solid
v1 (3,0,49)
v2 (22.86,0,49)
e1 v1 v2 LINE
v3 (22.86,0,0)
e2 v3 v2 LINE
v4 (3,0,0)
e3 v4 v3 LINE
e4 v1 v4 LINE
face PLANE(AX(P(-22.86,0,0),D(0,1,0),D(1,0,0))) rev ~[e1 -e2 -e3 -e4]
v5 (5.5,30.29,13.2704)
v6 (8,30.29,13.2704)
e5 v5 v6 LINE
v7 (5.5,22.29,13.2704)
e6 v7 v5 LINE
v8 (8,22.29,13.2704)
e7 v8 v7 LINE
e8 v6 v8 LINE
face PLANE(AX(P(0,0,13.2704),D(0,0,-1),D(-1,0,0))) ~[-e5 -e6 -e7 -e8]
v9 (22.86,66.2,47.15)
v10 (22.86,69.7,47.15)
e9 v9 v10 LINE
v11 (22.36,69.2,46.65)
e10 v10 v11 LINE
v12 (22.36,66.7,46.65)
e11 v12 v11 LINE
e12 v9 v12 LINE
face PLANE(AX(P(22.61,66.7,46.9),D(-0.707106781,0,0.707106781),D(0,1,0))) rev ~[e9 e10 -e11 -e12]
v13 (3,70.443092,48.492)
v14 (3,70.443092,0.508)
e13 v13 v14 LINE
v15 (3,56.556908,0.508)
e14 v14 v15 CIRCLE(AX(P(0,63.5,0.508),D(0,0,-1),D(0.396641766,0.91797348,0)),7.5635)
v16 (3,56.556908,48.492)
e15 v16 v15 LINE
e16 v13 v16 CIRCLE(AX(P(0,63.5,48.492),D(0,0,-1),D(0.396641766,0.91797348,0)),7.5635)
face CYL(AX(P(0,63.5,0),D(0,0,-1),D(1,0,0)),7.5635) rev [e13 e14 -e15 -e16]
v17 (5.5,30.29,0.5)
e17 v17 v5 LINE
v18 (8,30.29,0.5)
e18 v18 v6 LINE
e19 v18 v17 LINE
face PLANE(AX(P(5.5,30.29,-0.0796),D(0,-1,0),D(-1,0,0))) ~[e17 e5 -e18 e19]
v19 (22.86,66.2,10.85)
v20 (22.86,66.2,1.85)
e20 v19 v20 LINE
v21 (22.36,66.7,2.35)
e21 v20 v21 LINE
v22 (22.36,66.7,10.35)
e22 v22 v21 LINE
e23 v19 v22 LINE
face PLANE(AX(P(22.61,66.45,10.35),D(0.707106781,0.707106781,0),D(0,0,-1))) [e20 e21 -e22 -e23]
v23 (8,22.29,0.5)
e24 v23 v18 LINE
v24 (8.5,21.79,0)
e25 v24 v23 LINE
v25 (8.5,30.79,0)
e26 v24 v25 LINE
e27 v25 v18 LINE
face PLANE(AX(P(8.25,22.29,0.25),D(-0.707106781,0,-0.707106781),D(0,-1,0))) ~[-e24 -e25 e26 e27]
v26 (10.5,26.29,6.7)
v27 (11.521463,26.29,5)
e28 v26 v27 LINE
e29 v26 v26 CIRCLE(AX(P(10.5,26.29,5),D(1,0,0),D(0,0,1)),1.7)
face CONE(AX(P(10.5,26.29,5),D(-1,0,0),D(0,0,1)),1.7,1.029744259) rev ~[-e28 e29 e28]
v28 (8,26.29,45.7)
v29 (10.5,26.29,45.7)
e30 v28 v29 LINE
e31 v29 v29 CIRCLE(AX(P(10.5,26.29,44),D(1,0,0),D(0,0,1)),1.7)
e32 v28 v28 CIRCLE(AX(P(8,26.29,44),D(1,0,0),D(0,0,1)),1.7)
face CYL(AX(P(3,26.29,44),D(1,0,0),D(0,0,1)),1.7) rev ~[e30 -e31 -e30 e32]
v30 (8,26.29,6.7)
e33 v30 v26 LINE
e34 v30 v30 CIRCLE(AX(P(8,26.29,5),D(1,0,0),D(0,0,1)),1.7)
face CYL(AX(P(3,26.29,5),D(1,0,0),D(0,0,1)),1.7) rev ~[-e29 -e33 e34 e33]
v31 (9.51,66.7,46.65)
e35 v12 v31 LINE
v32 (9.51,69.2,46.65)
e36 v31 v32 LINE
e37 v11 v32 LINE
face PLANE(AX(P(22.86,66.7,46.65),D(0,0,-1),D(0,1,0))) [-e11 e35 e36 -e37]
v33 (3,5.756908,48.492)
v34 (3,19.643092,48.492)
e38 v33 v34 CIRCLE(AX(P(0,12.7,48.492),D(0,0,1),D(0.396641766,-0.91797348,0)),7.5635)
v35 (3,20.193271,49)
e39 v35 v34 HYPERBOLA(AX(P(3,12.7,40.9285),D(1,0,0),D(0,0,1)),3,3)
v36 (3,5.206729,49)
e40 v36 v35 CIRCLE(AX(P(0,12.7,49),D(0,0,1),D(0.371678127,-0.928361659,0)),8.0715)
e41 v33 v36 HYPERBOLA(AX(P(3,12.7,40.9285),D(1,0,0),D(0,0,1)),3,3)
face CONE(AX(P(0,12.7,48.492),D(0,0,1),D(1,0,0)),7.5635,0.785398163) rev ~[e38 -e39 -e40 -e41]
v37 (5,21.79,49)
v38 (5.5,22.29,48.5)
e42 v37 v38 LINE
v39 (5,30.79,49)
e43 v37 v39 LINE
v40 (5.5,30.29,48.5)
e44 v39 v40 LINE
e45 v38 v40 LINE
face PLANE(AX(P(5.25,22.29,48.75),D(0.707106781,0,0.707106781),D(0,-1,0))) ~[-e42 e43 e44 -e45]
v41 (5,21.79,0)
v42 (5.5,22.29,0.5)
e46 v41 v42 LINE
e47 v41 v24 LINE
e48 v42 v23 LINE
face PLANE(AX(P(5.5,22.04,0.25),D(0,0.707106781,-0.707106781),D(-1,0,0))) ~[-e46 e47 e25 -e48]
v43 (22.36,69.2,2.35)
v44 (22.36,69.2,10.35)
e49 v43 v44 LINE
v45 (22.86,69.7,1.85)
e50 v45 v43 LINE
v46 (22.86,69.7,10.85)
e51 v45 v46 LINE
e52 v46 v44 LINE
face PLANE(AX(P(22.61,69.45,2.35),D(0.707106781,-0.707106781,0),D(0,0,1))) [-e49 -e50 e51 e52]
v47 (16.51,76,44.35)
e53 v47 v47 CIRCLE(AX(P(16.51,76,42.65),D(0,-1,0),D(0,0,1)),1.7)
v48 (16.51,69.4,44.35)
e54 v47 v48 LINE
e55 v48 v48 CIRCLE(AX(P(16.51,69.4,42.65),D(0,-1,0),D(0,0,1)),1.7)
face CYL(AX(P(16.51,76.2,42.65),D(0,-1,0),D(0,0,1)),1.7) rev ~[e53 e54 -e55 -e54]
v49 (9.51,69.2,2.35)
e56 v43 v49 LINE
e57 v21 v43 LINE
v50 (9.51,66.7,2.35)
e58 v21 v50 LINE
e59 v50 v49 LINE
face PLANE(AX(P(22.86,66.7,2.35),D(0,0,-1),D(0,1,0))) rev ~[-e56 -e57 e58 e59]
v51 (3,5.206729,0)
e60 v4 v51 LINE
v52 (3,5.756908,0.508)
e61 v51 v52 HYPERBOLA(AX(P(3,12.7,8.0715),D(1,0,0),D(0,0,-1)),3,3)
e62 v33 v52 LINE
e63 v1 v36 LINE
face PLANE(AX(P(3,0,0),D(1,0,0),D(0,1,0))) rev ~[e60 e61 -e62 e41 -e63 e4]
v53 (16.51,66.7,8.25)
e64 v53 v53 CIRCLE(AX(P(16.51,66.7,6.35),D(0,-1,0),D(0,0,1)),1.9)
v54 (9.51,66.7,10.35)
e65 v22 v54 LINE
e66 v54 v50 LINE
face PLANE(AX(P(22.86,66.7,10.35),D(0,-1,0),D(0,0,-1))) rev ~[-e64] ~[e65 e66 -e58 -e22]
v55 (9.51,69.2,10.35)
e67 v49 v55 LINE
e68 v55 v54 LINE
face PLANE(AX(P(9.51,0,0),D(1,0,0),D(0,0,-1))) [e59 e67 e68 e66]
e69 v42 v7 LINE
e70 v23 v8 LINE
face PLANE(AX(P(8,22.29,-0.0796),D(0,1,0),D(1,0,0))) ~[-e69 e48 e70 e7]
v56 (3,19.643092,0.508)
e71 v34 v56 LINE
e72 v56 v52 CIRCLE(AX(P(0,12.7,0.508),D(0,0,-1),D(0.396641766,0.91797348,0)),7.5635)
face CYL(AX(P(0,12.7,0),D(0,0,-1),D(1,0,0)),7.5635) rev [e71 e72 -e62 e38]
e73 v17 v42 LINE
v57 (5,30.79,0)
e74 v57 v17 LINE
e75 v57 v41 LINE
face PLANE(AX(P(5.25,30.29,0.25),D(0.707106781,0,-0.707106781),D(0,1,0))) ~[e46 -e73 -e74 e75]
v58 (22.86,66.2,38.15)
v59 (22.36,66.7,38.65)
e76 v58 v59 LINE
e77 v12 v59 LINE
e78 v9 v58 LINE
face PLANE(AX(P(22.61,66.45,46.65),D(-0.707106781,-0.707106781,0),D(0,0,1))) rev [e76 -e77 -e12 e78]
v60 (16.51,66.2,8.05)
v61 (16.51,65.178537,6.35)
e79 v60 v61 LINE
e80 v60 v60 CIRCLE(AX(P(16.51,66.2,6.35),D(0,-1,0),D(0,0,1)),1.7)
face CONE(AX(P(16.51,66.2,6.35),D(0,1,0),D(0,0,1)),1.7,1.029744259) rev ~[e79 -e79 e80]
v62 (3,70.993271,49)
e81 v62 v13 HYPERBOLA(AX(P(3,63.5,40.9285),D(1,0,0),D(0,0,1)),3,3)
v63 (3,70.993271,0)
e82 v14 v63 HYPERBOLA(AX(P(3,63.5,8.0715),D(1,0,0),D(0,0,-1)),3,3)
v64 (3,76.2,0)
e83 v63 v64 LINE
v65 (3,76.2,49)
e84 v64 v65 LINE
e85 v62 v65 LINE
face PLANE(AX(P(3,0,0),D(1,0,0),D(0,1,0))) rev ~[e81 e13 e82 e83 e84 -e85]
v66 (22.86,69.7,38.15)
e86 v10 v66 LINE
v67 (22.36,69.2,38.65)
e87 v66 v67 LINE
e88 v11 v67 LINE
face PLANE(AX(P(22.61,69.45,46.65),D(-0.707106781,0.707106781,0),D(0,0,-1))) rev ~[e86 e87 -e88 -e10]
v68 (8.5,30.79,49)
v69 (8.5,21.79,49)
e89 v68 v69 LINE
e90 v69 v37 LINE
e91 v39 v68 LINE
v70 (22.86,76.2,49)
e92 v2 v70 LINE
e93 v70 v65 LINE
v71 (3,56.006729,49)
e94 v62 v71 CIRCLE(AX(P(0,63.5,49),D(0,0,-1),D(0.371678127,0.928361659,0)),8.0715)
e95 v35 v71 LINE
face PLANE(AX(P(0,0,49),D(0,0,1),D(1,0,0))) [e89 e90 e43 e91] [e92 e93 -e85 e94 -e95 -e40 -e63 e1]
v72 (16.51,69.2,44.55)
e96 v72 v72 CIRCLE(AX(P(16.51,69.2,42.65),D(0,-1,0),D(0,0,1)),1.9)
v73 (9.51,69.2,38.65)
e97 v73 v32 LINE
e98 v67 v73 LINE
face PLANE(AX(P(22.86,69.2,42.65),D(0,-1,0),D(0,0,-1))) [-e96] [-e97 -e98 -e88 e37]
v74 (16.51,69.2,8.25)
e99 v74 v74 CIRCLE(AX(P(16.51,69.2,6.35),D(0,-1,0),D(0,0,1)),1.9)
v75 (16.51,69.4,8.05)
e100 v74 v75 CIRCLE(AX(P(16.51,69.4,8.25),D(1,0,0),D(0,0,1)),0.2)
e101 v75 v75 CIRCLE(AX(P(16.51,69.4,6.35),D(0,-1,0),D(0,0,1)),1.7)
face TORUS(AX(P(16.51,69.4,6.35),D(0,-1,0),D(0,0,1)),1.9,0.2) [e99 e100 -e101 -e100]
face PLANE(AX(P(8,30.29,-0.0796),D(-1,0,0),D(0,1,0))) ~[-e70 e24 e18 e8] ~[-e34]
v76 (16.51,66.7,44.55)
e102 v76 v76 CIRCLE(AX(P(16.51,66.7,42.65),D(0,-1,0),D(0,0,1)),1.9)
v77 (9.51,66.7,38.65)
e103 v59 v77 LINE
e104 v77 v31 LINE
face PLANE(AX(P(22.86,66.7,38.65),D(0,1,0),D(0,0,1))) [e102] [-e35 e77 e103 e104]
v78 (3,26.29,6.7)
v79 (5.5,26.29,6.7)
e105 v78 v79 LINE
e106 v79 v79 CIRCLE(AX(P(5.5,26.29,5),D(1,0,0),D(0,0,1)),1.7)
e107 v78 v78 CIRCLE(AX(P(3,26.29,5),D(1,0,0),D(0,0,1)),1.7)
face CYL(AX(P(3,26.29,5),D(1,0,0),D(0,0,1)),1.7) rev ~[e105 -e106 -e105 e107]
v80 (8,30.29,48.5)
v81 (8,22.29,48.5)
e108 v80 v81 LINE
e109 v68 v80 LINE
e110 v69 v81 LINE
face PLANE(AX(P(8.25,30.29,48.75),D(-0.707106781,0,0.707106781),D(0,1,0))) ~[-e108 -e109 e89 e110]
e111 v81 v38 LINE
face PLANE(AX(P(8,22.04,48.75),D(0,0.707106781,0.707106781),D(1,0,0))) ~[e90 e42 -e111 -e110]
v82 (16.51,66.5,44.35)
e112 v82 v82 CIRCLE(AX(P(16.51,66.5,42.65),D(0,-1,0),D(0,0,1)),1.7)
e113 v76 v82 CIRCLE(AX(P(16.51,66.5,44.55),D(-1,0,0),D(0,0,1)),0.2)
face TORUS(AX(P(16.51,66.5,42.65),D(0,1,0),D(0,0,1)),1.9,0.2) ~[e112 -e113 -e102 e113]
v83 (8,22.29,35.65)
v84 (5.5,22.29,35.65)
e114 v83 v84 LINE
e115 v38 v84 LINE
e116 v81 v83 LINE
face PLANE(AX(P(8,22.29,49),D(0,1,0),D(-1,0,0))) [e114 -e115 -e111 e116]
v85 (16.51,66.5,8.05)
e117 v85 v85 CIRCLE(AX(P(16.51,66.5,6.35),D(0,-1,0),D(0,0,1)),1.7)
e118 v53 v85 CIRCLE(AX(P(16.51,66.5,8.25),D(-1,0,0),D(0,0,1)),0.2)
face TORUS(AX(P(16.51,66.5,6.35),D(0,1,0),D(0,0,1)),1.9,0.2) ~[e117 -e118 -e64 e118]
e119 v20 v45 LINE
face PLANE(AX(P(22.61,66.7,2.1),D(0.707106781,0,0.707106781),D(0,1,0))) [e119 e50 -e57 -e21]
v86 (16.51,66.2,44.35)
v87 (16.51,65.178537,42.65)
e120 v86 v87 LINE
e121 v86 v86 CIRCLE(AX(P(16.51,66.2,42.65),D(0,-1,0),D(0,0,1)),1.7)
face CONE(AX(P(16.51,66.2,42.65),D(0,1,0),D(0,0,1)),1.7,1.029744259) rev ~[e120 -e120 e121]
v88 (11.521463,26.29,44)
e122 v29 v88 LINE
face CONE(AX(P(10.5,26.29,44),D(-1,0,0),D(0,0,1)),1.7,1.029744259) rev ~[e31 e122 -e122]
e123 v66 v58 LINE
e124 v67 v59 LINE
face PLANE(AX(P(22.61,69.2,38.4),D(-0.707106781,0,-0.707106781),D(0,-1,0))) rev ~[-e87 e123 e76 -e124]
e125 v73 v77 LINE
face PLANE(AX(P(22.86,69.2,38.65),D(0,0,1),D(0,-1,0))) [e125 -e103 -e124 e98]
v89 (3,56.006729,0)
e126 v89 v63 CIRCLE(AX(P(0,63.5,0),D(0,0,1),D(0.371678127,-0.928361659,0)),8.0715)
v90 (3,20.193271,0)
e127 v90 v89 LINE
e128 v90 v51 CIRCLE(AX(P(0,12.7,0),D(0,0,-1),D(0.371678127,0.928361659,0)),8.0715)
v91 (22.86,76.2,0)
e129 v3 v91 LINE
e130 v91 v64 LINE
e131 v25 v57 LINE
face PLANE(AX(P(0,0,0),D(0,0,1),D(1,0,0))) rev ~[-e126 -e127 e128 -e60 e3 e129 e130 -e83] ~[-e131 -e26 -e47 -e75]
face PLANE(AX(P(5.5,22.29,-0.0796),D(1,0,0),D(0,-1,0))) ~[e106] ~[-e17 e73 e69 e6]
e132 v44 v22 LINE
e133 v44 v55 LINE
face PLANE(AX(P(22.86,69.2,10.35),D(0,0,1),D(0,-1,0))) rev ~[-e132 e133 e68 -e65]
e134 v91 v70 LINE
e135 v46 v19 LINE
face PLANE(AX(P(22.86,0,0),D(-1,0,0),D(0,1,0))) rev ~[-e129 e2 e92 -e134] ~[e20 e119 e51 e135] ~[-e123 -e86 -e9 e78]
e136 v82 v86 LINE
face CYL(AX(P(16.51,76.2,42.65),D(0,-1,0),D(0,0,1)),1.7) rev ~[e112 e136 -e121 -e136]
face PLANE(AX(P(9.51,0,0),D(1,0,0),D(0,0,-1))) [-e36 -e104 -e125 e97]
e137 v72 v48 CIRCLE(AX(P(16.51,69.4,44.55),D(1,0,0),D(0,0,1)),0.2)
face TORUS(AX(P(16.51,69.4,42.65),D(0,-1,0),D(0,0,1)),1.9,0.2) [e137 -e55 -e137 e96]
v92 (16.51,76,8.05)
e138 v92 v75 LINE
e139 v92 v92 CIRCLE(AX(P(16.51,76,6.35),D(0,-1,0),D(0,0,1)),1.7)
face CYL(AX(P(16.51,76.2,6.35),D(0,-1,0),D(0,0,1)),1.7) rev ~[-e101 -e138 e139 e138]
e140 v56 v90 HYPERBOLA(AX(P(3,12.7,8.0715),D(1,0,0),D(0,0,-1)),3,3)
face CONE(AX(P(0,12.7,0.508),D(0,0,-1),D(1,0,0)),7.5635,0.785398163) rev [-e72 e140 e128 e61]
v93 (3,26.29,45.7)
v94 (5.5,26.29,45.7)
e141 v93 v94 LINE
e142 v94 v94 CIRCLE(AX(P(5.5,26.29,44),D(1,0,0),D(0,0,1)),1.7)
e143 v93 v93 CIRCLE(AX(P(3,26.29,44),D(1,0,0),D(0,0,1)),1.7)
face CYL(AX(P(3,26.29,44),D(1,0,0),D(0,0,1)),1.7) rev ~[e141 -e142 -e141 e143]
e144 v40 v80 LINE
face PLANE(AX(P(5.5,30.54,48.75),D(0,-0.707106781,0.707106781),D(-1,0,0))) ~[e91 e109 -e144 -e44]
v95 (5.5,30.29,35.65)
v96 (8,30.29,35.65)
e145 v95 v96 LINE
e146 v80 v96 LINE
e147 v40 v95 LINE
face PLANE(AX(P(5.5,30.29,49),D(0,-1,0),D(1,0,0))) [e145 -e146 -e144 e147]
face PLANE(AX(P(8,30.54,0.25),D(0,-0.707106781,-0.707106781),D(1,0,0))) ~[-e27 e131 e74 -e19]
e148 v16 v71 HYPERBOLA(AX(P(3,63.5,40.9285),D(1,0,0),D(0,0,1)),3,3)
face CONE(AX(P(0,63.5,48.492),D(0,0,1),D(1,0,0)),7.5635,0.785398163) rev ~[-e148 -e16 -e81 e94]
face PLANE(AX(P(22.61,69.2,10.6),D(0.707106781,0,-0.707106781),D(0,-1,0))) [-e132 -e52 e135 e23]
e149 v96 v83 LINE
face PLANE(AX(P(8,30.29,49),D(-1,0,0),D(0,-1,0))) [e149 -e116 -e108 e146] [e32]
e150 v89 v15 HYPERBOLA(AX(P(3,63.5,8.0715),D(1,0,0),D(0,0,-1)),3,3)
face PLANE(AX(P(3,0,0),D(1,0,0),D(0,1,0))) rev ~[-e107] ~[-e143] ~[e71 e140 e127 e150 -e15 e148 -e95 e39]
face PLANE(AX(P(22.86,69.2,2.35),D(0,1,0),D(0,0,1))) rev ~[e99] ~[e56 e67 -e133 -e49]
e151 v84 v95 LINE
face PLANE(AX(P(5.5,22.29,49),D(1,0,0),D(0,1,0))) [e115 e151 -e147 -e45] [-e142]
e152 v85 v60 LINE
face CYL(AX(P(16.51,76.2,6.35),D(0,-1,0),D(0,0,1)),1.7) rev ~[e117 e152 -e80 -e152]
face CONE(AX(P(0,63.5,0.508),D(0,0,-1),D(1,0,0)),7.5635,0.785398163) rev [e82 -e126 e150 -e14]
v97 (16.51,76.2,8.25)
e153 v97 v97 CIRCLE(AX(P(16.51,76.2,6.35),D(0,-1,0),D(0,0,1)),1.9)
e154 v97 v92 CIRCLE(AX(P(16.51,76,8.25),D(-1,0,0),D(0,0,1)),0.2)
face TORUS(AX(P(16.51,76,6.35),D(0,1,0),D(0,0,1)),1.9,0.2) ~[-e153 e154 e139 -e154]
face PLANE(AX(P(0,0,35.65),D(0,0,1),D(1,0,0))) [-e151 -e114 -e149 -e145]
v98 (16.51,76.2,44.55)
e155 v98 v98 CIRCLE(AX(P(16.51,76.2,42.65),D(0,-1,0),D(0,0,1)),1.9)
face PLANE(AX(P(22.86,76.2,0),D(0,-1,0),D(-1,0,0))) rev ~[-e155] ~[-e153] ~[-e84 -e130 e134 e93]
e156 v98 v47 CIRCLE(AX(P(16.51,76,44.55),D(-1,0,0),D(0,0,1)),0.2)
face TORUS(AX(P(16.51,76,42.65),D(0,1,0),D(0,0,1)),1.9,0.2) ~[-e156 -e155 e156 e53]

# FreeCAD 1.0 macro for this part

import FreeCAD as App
import Part
import Sketcher

V = App.Vector


def edges_at(feature, points):
    """Names of the edges that pass closest to the given points."""
    edges = feature.Shape.Edges
    near = lambda p: min(range(len(edges)), key=lambda i: edges[i].distToShape(Part.Vertex(*p))[0])
    return sorted({f"Edge{near(p) + 1}" for p in points})


def add_polygon(sketch, points):
    """Adds a closed chain of lines whose ends are joined by coincident constraints."""
    first, n = sketch.GeometryCount, len(points)
    for a, b in zip(points, points[1:] + points[:1]):
        sketch.addGeometry(Part.LineSegment(App.Vector(*a, 0), App.Vector(*b, 0)), False)
    for i in range(n):
        sketch.addConstraint(Sketcher.Constraint("Coincident", first + i, 2, first + (i + 1) % n, 1))

doc = App.newDocument("Part")
body = doc.addObject("PartDesign::Body", "Body")

# Sketch on XY plane
sketch1 = body.newObject("Sketcher::SketchObject", "Sketch")
sketch1.AttachmentSupport = (doc.getObject("XY_Plane"), [""])
sketch1.MapMode = "FlatFace"
add_polygon(sketch1, [(-23, 76), (-23, 0), (23, 0), (23, 76)])  # lines 0-3
sketch1.addGeometry(Part.Circle(V(0, 13, 0), V(0, 0, 1), 8), False)  # 4
sketch1.addGeometry(Part.Circle(V(0, 64, 0), V(0, 0, 1), 8), False)  # 5
sketch1.addConstraint([
    Sketcher.Constraint("Vertical", 0),
    Sketcher.Constraint("Horizontal", 1),
    Sketcher.Constraint("Vertical", 2),
    Sketcher.Constraint("Horizontal", 3),
    Sketcher.Constraint("Equal", 4, 5),
    Sketcher.Constraint("Symmetric", 0, 2, 1, 2, -1, 1),
    Sketcher.Constraint("PointOnObject", 4, 3, -2),
    Sketcher.Constraint("PointOnObject", 5, 3, -2),
    Sketcher.Constraint("Diameter", 4, 15.127),
    Sketcher.Constraint("DistanceY", 0, 2, 0, 1, 76.2),
    Sketcher.Constraint("DistanceX", 1, 1, 1, 2, 45.72),
    Sketcher.Constraint("DistanceY", -1, 1, 4, 3, 12.7),
    Sketcher.Constraint("DistanceY", 4, 3, 5, 3, 50.8),
])
pad1 = body.newObject("PartDesign::Pad", "Pad")
pad1.Profile = sketch1
pad1.Length = 49
doc.recompute()

chamfer = body.newObject("PartDesign::Chamfer", "Chamfer")
chamfer.Base = (pad1, edges_at(pad1, [
    (-7.564, 63.5, 49),
    (-7.564, 12.7, 49),
    (-7.564, 63.5, 0),
    (-7.564, 12.7, 0),
]))
chamfer.Size = 0.508

# Sketch on YZ plane
sketch2 = body.newObject("Sketcher::SketchObject", "Sketch001")
sketch2.AttachmentSupport = (doc.getObject("YZ_Plane"), [""])
sketch2.MapMode = "FlatFace"
sketch2.AttachmentOffset = App.Placement(V(0, 0, 3), App.Rotation())
add_polygon(sketch2, [(-4, -3), (80, -3), (80, 53), (-4, 53)])  # lines 0-3
sketch2.addConstraint([
    Sketcher.Constraint("Horizontal", 0),
    Sketcher.Constraint("Vertical", 1),
    Sketcher.Constraint("Horizontal", 2),
    Sketcher.Constraint("Vertical", 3),
    Sketcher.Constraint("DistanceY", 1, 1, 1, 2, 55.75),
    Sketcher.Constraint("DistanceY", 0, 2, -1, 1, 3.17),
    Sketcher.Constraint("DistanceX", 0, 1, 0, 2, 84.1715),
    Sketcher.Constraint("DistanceX", 2, 2, -1, 1, 4.154),
])
pocket1 = body.newObject("PartDesign::Pocket", "Pocket")
pocket1.Profile = sketch2
pocket1.Length = 100

# Sketch on XZ plane
sketch3 = body.newObject("Sketcher::SketchObject", "Sketch002")
sketch3.AttachmentSupport = (doc.getObject("XZ_Plane"), [""])
sketch3.MapMode = "FlatFace"
sketch3.AttachmentOffset = App.Placement(V(0, 0, -76.2), App.Rotation())
sketch3.addGeometry([
    Part.Circle(V(16.5, 42.6, 0), V(0, 0, 1), 1.7),
    Part.Circle(V(16.5, 6.3, 0), V(0, 0, 1), 1.7),
], False)
sketch3.addConstraint([
    Sketcher.Constraint("Equal", 0, 1),
    Sketcher.Constraint("Vertical", 0, 3, 1, 3),
    Sketcher.Constraint("Diameter", 0, 3.4),
    Sketcher.Constraint("DistanceY", 1, 3, 0, 3, 36.3),
    Sketcher.Constraint("DistanceX", -1, 1, 0, 3, 16.51),
    Sketcher.Constraint("DistanceY", -1, 1, 0, 3, 42.65),
])
doc.recompute()
hole = body.newObject("PartDesign::Hole", "Hole")
hole.Profile = sketch3
hole.ThreadType = "None"
hole.Diameter = 3.4
hole.DepthType = "Dimension"
hole.Depth = 10
hole.DrillPoint = "Angled"
hole.DrillPointAngle = 118
hole.Reversed = True

# Sketch on YZ plane
sketch4 = body.newObject("Sketcher::SketchObject", "Sketch003")
sketch4.AttachmentSupport = (doc.getObject("YZ_Plane"), [""])
sketch4.MapMode = "FlatFace"
sketch4.AttachmentOffset = App.Placement(V(0, 0, 22.86), App.Rotation())
add_polygon(sketch4, [(69.2, 38.6), (69.2, 46.6), (66.7, 46.6), (66.7, 38.6)])  # lines 0-3
add_polygon(sketch4, [(66.7, 2.4), (69.2, 2.4), (69.2, 10.3), (66.7, 10.3)])  # lines 4-7
sketch4.addConstraint([
    Sketcher.Constraint("Vertical", 0),
    Sketcher.Constraint("Horizontal", 1),
    Sketcher.Constraint("Vertical", 2),
    Sketcher.Constraint("Horizontal", 3),
    Sketcher.Constraint("Horizontal", 4),
    Sketcher.Constraint("Vertical", 5),
    Sketcher.Constraint("Horizontal", 6),
    Sketcher.Constraint("Vertical", 7),
    Sketcher.Constraint("Vertical", 3, 2, 4, 2),
    Sketcher.Constraint("Vertical", 2, 2, 6, 2),
    Sketcher.Constraint("Equal", 2, 5),
    Sketcher.Constraint("DistanceY", 0, 1, 0, 2, 8.0),
    Sketcher.Constraint("DistanceX", 1, 2, 1, 1, 2.5),
    Sketcher.Constraint("DistanceX", -1, 1, 0, 2, 69.2),
    Sketcher.Constraint("DistanceY", 4, 2, 3, 2, 36.3),
    Sketcher.Constraint("DistanceY", -1, 1, 0, 2, 46.65),
])
pocket2 = body.newObject("PartDesign::Pocket", "Pocket001")
pocket2.Profile = sketch4
pocket2.Length = 13.35
doc.recompute()

fillet = body.newObject("PartDesign::Fillet", "Fillet")
fillet.Base = (pocket2, edges_at(pocket2, [
    (16.51, 76.2, 40.95),
    (16.51, 76.2, 4.65),
    (16.51, 66.7, 4.65),
    (16.51, 69.2, 4.65),
    (16.51, 69.2, 40.95),
    (16.51, 66.7, 40.95),
]))
fillet.Radius = 0.2
doc.recompute()

chamfer2 = body.newObject("PartDesign::Chamfer", "Chamfer001")
chamfer2.Base = (fillet, edges_at(fillet, [
    (22.86, 69.2, 42.65),
    (22.86, 67.95, 38.65),
    (22.86, 66.7, 42.65),
    (22.86, 67.95, 46.65),
    (22.86, 69.2, 6.35),
    (22.86, 67.95, 10.35),
    (22.86, 66.7, 6.35),
    (22.86, 67.95, 2.35),
]))
chamfer2.Size = 0.5

# Sketch on YZ plane
sketch5 = body.newObject("Sketcher::SketchObject", "Sketch004")
sketch5.AttachmentSupport = (doc.getObject("YZ_Plane"), [""])
sketch5.MapMode = "FlatFace"
sketch5.AttachmentOffset = App.Placement(V(0, 0, 3), App.Rotation())
sketch5.addGeometry([
    Part.Circle(V(26.3, 5, 0), V(0, 0, 1), 1.7),
    Part.Circle(V(26.3, 44, 0), V(0, 0, 1), 1.7),
], False)
sketch5.addConstraint([
    Sketcher.Constraint("Equal", 0, 1),
    Sketcher.Constraint("Vertical", 0, 3, 1, 3),
    Sketcher.Constraint("Diameter", 0, 3.4),
    Sketcher.Constraint("DistanceY", -1, 1, 0, 3, 5.0),
    Sketcher.Constraint("DistanceY", -1, 1, 1, 3, 44.0),
    Sketcher.Constraint("DistanceX", -1, 1, 0, 3, 26.29),
])
doc.recompute()
hole2 = body.newObject("PartDesign::Hole", "Hole001")
hole2.Profile = sketch5
hole2.ThreadType = "None"
hole2.Diameter = 3.4
hole2.DepthType = "Dimension"
hole2.Depth = 7.5
hole2.DrillPoint = "Angled"
hole2.DrillPointAngle = 118
hole2.Reversed = True

# Sketch on XY plane
sketch6 = body.newObject("Sketcher::SketchObject", "Sketch005")
sketch6.AttachmentSupport = (doc.getObject("XY_Plane"), [""])
sketch6.MapMode = "FlatFace"
sketch6.AttachmentOffset = App.Placement(V(0, 0, 49), App.Rotation())
add_polygon(sketch6, [(8, 30.3), (5.5, 30.3), (5.5, 22.3), (8, 22.3)])  # lines 0-3
sketch6.addConstraint([
    Sketcher.Constraint("Horizontal", 0),
    Sketcher.Constraint("Vertical", 1),
    Sketcher.Constraint("Horizontal", 2),
    Sketcher.Constraint("Vertical", 3),
    Sketcher.Constraint("DistanceY", 1, 2, 1, 1, 8.0),
    Sketcher.Constraint("DistanceX", 0, 2, 0, 1, 2.5),
    Sketcher.Constraint("DistanceX", -1, 1, 2, 2, 8.0),
    Sketcher.Constraint("DistanceY", -1, 1, 0, 2, 30.29),
])
pocket3 = body.newObject("PartDesign::Pocket", "Pocket002")
pocket3.Profile = sketch6
pocket3.Length = 13.35
doc.recompute()

datumplane = body.newObject("PartDesign::Plane", "DatumPlane")
datumplane.AttachmentSupport = (doc.getObject("XY_Plane"), [""])
datumplane.MapMode = "FlatFace"
datumplane.AttachmentOffset = App.Placement(V(0, 0, 24.4602), App.Rotation())
mirrored = body.newObject("PartDesign::Mirrored", "Mirrored")
mirrored.Originals = [pocket3]
mirrored.MirrorPlane = (datumplane, [""])
body.Tip = mirrored
doc.recompute()

chamfer3 = body.newObject("PartDesign::Chamfer", "Chamfer002")
chamfer3.Base = (mirrored, edges_at(mirrored, [
    (8, 26.29, 49),
    (6.75, 30.29, 49),
    (5.5, 26.29, 49),
    (6.75, 22.29, 49),
    (8, 26.29, 0),
    (6.75, 30.29, 0),
    (5.5, 26.29, 0),
    (6.75, 22.29, 0),
]))
chamfer3.Size = 0.5

doc.recompute()
